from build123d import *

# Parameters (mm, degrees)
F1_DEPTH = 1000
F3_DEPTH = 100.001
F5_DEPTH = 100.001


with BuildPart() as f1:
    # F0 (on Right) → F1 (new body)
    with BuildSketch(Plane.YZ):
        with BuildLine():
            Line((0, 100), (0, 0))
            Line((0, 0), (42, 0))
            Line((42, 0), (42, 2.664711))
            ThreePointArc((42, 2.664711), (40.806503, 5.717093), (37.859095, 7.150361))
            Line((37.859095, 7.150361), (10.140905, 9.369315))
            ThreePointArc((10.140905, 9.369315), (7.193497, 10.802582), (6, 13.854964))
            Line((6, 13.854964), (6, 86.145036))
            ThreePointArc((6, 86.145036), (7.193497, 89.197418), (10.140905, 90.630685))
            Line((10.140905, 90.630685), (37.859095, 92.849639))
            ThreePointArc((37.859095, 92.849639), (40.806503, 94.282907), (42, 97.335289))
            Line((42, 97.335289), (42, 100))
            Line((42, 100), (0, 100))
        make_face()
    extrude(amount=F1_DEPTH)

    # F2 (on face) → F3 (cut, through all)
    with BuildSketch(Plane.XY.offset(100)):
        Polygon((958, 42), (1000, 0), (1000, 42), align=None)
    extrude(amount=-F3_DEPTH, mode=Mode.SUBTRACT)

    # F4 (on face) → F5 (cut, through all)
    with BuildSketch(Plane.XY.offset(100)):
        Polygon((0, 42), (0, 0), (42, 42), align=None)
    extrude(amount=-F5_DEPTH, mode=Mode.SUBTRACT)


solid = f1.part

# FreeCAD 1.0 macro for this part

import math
import FreeCAD as App
import Part
import Sketcher
Q = App.Units.Quantity


def add_polygon(sketch, points):
    """Adds a closed chain of lines whose ends are joined by coincident constraints."""
    first, n = sketch.GeometryCount, len(points)
    for a, b in zip(points, points[1:] + points[:1]):
        sketch.addGeometry(Part.LineSegment(App.Vector(*a, 0), App.Vector(*b, 0)), False)
    for i in range(n):
        sketch.addConstraint(Sketcher.Constraint("Coincident", first + i, 2, first + (i + 1) % n, 1))

doc = App.newDocument("Part")
body = doc.addObject("PartDesign::Body", "Body")

# Sketch on YZ plane
sketch1 = body.newObject("Sketcher::SketchObject", "Sketch")
sketch1.AttachmentSupport = (doc.getObject("YZ_Plane"), [""])
sketch1.MapMode = "FlatFace"
sketch1.addGeometry([
    Part.LineSegment(App.Vector(0, 100, 0), App.Vector(0, 0, 0)),  # 0
    Part.LineSegment(App.Vector(0, 0, 0), App.Vector(42, 0, 0)),  # 1
    Part.LineSegment(App.Vector(42, 0, 0), App.Vector(42, 2.7, 0)),  # 2
    Part.ArcOfCircle(Part.Circle(App.Vector(37.5, 2.7, 0), App.Vector(0, 0, 1), 4.5), math.radians(0), math.radians(85)),  # 3
    Part.LineSegment(App.Vector(37.9, 7.2, 0), App.Vector(10.1, 9.4, 0)),  # 4
    Part.ArcOfCircle(Part.Circle(App.Vector(10.5, 13.9, 0), App.Vector(0, 0, 1), 4.5), math.radians(-180), math.radians(-95)),  # 5
    Part.LineSegment(App.Vector(6, 13.9, 0), App.Vector(6, 86.1, 0)),  # 6
    Part.ArcOfCircle(Part.Circle(App.Vector(10.5, 86.1, 0), App.Vector(0, 0, 1), 4.5), math.radians(95), math.radians(180)),  # 7
    Part.LineSegment(App.Vector(10.1, 90.6, 0), App.Vector(37.9, 92.8, 0)),  # 8
    Part.ArcOfCircle(Part.Circle(App.Vector(37.5, 97.3, 0), App.Vector(0, 0, 1), 4.5), math.radians(-85), math.radians(0)),  # 9
    Part.LineSegment(App.Vector(42, 97.3, 0), App.Vector(42, 100, 0)),  # 10
    Part.LineSegment(App.Vector(42, 100, 0), App.Vector(0, 100, 0)),  # 11
], False)
sketch1.addConstraint([
    Sketcher.Constraint("Coincident", 0, 2, 1, 1),
    Sketcher.Constraint("Coincident", 1, 2, 2, 1),
    Sketcher.Constraint("Tangent", 2, 2, 3, 1),
    Sketcher.Constraint("Tangent", 3, 2, 4, 1),
    Sketcher.Constraint("Tangent", 4, 2, 5, 2),
    Sketcher.Constraint("Tangent", 5, 1, 6, 1),
    Sketcher.Constraint("Tangent", 6, 2, 7, 2),
    Sketcher.Constraint("Tangent", 7, 1, 8, 1),
    Sketcher.Constraint("Tangent", 8, 2, 9, 1),
    Sketcher.Constraint("Tangent", 9, 2, 10, 1),
    Sketcher.Constraint("Coincident", 10, 2, 11, 1),
    Sketcher.Constraint("Coincident", 11, 2, 0, 1),
    Sketcher.Constraint("Vertical", 0),
    Sketcher.Constraint("Horizontal", 1),
    Sketcher.Constraint("Vertical", 2),
    Sketcher.Constraint("Vertical", 6),
    Sketcher.Constraint("Vertical", 10),
    Sketcher.Constraint("Horizontal", 11),
    Sketcher.Constraint("Coincident", 0, 2, -1, 1),
    Sketcher.Constraint("Equal", 3, 5),
    Sketcher.Constraint("Equal", 5, 7),
    Sketcher.Constraint("Equal", 7, 9),
    Sketcher.Constraint("Vertical", 3, 3, 9, 3),
    Sketcher.Constraint("Vertical", 4, 2, 7, 1),
    Sketcher.Constraint("Equal", 2, 10),
    Sketcher.Constraint("Radius", 3, Q("4.500002 mm")),
    Sketcher.Constraint("DistanceX", 1, 1, 1, 2, Q("42 mm")),
    Sketcher.Constraint("DistanceY", 0, 2, 0, 1, Q("100 mm")),
    Sketcher.Constraint("DistanceX", -1, 1, 5, 1, Q("6 mm")),
    Sketcher.Constraint("DistanceY", 2, 1, 2, 2, Q("2.664711 mm")),
    Sketcher.Constraint("DistanceY", 6, 1, 6, 2, Q("72.290072 mm")),
])
pad1 = body.newObject("PartDesign::Pad", "Pad")
pad1.Profile = sketch1
pad1.Length = 1000

# Sketch on XY plane
sketch2 = body.newObject("Sketcher::SketchObject", "Sketch001")
sketch2.AttachmentSupport = (doc.getObject("XY_Plane"), [""])
sketch2.MapMode = "FlatFace"
sketch2.AttachmentOffset = App.Placement(App.Vector(0, 0, 100), App.Rotation())
add_polygon(sketch2, [(958, 42), (1000, 0), (1000, 42)])  # lines 0-2
sketch2.addConstraint([
    Sketcher.Constraint("Vertical", 1),
    Sketcher.Constraint("Horizontal", 2),
    Sketcher.Constraint("PointOnObject", 0, 2, -1),
    Sketcher.Constraint("Equal", 2, 1),
    Sketcher.Constraint("DistanceX", 2, 2, 2, 1, Q("42 mm")),
    Sketcher.Constraint("DistanceX", -1, 1, 0, 2, Q("1000 mm")),
])
pocket1 = body.newObject("PartDesign::Pocket", "Pocket")
pocket1.Profile = sketch2
pocket1.Type = "ThroughAll"

# Sketch on XY plane
sketch3 = body.newObject("Sketcher::SketchObject", "Sketch002")
sketch3.AttachmentSupport = (doc.getObject("XY_Plane"), [""])
sketch3.MapMode = "FlatFace"
sketch3.AttachmentOffset = App.Placement(App.Vector(0, 0, 100), App.Rotation())
add_polygon(sketch3, [(0, 42), (0, 0), (42, 42)])  # lines 0-2
sketch3.addConstraint([
    Sketcher.Constraint("Vertical", 0),
    Sketcher.Constraint("Horizontal", 2),
    Sketcher.Constraint("Coincident", 0, 2, -1, 1),
    Sketcher.Constraint("Equal", 2, 0),
    Sketcher.Constraint("DistanceX", 2, 2, 2, 1, Q("42 mm")),
])
pocket2 = body.newObject("PartDesign::Pocket", "Pocket001")
pocket2.Profile = sketch3
pocket2.Type = "ThroughAll"

doc.recompute()
